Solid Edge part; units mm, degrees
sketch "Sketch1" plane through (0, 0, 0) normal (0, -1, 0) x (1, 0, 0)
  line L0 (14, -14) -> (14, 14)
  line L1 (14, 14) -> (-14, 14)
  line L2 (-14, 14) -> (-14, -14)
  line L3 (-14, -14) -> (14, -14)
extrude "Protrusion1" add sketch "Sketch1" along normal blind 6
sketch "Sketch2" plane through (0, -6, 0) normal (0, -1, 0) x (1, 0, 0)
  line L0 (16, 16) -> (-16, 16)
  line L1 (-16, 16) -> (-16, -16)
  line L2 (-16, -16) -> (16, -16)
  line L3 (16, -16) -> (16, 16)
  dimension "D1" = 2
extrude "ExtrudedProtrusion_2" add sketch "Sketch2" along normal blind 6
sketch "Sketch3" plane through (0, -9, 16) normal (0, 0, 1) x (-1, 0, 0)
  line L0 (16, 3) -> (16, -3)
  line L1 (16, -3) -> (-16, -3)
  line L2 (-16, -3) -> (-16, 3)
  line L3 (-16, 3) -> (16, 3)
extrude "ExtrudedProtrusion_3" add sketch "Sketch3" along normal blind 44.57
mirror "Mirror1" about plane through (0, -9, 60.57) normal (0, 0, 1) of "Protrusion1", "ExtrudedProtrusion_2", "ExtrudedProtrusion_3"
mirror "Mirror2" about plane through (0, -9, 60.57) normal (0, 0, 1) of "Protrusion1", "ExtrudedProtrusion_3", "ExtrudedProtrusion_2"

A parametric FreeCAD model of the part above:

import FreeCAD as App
import Part
import Sketcher

V = App.Vector
Q = App.Units.Quantity


def add_polygon(sketch, points):
    """Adds a closed chain of lines whose ends are joined by coincident constraints."""
    first, n = sketch.GeometryCount, len(points)
    for a, b in zip(points, points[1:] + points[:1]):
        sketch.addGeometry(Part.LineSegment(App.Vector(*a, 0), App.Vector(*b, 0)), False)
    for i in range(n):
        sketch.addConstraint(Sketcher.Constraint("Coincident", first + i, 2, first + (i + 1) % n, 1))

doc = App.newDocument("Part")
body = doc.addObject("PartDesign::Body", "Body")

# Sketch on XZ plane
sketch1 = body.newObject("Sketcher::SketchObject", "Sketch")
sketch1.AttachmentSupport = (doc.getObject("XZ_Plane"), [""])
sketch1.MapMode = "FlatFace"
add_polygon(sketch1, [(-14, -14), (14, -14), (14, 14), (-14, 14)])  # lines 0-3
sketch1.addConstraint([
    Sketcher.Constraint("Horizontal", 0),
    Sketcher.Constraint("Vertical", 1),
    Sketcher.Constraint("Horizontal", 2),
    Sketcher.Constraint("Vertical", 3),
    Sketcher.Constraint("Symmetric", 0, 2, 2, 2, -1, 1),
    Sketcher.Constraint("Equal", 2, 1),
    Sketcher.Constraint("DistanceX", 0, 1, 0, 2, Q("28 mm")),
])
pad1 = body.newObject("PartDesign::Pad", "Pad")
pad1.Profile = sketch1
pad1.Length = 6

# Sketch on XZ plane
sketch2 = body.newObject("Sketcher::SketchObject", "Sketch001")
sketch2.AttachmentSupport = (doc.getObject("XZ_Plane"), [""])
sketch2.MapMode = "FlatFace"
sketch2.AttachmentOffset = App.Placement(V(0, 0, 6), App.Rotation())
add_polygon(sketch2, [(16, -16), (16, 16), (-16, 16), (-16, -16)])  # lines 0-3
sketch2.addConstraint([
    Sketcher.Constraint("Vertical", 0),
    Sketcher.Constraint("Horizontal", 1),
    Sketcher.Constraint("Vertical", 2),
    Sketcher.Constraint("Horizontal", 3),
    Sketcher.Constraint("Symmetric", 0, 2, 2, 2, -1, 1),
    Sketcher.Constraint("Equal", 3, 0),
    Sketcher.Constraint("DistanceX", 1, 2, 1, 1, Q("32 mm")),
])
pad2 = body.newObject("PartDesign::Pad", "Pad001")
pad2.Profile = sketch2
pad2.Length = 6

# Sketch on XY plane
sketch3 = body.newObject("Sketcher::SketchObject", "Sketch002")
sketch3.AttachmentSupport = (doc.getObject("XY_Plane"), [""])
sketch3.MapMode = "FlatFace"
sketch3.AttachmentOffset = App.Placement(V(0, 0, 16), App.Rotation())
add_polygon(sketch3, [(-16, -6), (-16, -12), (16, -12), (16, -6)])  # lines 0-3
sketch3.addConstraint([
    Sketcher.Constraint("Vertical", 0),
    Sketcher.Constraint("Horizontal", 1),
    Sketcher.Constraint("Vertical", 2),
    Sketcher.Constraint("Horizontal", 3),
    Sketcher.Constraint("DistanceX", 1, 1, 1, 2, Q("32 mm")),
    Sketcher.Constraint("DistanceY", 0, 2, 0, 1, Q("6 mm")),
    Sketcher.Constraint("DistanceX", 0, 2, -1, 1, Q("16 mm")),
    Sketcher.Constraint("DistanceY", 0, 2, -1, 1, Q("12 mm")),
])
pad3 = body.newObject("PartDesign::Pad", "Pad002")
pad3.Profile = sketch3
pad3.Length = 44.57
doc.recompute()

datumplane = body.newObject("PartDesign::Plane", "DatumPlane")
datumplane.AttachmentSupport = (doc.getObject("XY_Plane"), [""])
datumplane.MapMode = "FlatFace"
datumplane.AttachmentOffset = App.Placement(V(0, 0, 60.57), App.Rotation())
mirrored = body.newObject("PartDesign::Mirrored", "Mirrored")
mirrored.Originals = [pad1, pad2, pad3]
mirrored.MirrorPlane = (datumplane, [""])
body.Tip = mirrored
doc.recompute()

datumplane2 = body.newObject("PartDesign::Plane", "DatumPlane001")
datumplane2.AttachmentSupport = (doc.getObject("XY_Plane"), [""])
datumplane2.MapMode = "FlatFace"
datumplane2.AttachmentOffset = App.Placement(V(0, 0, 60.57), App.Rotation())
mirrored2 = body.newObject("PartDesign::Mirrored", "Mirrored001")
mirrored2.Originals = [pad1, pad3, pad2]
mirrored2.MirrorPlane = (datumplane2, [""])
body.Tip = mirrored2

doc.recompute()
